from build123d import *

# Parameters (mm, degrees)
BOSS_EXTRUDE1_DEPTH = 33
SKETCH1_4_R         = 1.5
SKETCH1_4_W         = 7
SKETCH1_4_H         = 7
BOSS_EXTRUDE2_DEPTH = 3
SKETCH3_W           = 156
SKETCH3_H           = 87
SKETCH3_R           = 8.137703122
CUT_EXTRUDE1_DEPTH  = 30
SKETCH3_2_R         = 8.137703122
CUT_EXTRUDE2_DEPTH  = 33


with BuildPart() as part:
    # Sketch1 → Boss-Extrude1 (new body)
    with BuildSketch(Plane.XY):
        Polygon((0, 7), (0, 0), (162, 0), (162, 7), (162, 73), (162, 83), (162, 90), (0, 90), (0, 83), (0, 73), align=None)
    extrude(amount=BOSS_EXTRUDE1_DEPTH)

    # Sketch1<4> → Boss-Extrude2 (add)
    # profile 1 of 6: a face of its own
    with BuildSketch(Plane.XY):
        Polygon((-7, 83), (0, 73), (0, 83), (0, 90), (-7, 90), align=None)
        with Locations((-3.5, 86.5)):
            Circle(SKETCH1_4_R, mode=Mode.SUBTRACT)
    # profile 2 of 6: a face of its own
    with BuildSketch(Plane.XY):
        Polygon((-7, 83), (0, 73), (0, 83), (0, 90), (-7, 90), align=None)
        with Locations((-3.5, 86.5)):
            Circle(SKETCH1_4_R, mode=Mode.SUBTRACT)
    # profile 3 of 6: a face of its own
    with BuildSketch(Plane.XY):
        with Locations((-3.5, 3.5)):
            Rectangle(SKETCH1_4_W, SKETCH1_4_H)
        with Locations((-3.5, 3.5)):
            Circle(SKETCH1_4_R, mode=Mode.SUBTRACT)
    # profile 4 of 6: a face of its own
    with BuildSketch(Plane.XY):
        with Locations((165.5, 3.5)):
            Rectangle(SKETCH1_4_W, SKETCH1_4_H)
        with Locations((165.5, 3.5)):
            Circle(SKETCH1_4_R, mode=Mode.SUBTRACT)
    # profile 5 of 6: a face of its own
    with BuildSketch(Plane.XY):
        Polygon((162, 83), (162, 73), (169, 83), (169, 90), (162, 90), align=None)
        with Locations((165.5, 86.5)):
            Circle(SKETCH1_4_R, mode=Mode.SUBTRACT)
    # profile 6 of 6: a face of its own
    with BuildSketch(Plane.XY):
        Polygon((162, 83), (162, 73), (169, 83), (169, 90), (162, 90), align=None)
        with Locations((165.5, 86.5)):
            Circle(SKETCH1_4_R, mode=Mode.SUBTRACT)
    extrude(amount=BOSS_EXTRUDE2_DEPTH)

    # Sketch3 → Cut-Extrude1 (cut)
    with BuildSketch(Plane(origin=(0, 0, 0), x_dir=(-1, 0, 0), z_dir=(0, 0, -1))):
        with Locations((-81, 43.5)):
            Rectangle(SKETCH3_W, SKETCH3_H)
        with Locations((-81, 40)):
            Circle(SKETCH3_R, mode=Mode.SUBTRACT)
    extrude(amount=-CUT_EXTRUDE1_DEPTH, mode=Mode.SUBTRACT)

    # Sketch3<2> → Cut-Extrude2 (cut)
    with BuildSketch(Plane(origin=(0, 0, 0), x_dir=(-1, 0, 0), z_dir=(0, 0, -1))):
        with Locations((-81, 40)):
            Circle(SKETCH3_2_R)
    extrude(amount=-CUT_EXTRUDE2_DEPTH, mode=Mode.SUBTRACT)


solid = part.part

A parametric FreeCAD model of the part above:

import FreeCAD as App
import Part
import Sketcher
Q = App.Units.Quantity

doc = App.newDocument("Part")
body = doc.addObject("PartDesign::Body", "Body")

sketch1 = body.newObject("Sketcher::SketchObject", "Sketch")
sketch1.AttachmentSupport = (doc.getObject("XY_Plane"), [""])
sketch1.MapMode = "FlatFace"
sketch1.addGeometry([
    Part.LineSegment(App.Vector(0, 0, 0), App.Vector(162, 0, 0)),
    Part.LineSegment(App.Vector(162, 0, 0), App.Vector(162, 90, 0)),
    Part.LineSegment(App.Vector(162, 90, 0), App.Vector(0, 90, 0)),
    Part.LineSegment(App.Vector(0, 90, 0), App.Vector(0, 0, 0)),
], False)
sketch1.addConstraint([
    Sketcher.Constraint("Coincident", 0, 2, 1, 1),
    Sketcher.Constraint("Coincident", 1, 2, 2, 1),
    Sketcher.Constraint("Coincident", 2, 2, 3, 1),
    Sketcher.Constraint("Coincident", 3, 2, 0, 1),
    Sketcher.Constraint("Horizontal", 0),
    Sketcher.Constraint("Vertical", 1),
    Sketcher.Constraint("Horizontal", 2),
    Sketcher.Constraint("Vertical", 3),
    Sketcher.Constraint("Coincident", 3, 2, -1, 1),
    Sketcher.Constraint("DistanceX", 0, 1, 0, 2, Q("162 mm")),
    Sketcher.Constraint("DistanceY", 1, 1, 1, 2, Q("90 mm")),
])
pad1 = body.newObject("PartDesign::Pad", "Pad")
pad1.Profile = sketch1
pad1.Length = 33

sketch2 = body.newObject("Sketcher::SketchObject", "Sketch001")
sketch2.AttachmentSupport = (doc.getObject("XY_Plane"), [""])
sketch2.MapMode = "FlatFace"
sketch2.addGeometry([
    Part.LineSegment(App.Vector(-7, 83, 0), App.Vector(0, 73, 0)),
    Part.LineSegment(App.Vector(0, 73, 0), App.Vector(0, 90, 0)),
    Part.LineSegment(App.Vector(0, 90, 0), App.Vector(-7, 90, 0)),
    Part.LineSegment(App.Vector(-7, 90, 0), App.Vector(-7, 83, 0)),
    Part.Circle(App.Vector(-3.5, 86.5, 0), App.Vector(0, 0, 1), 1.5),
    Part.LineSegment(App.Vector(-7, 7, 0), App.Vector(-7, 0, 0)),
    Part.LineSegment(App.Vector(-7, 0, 0), App.Vector(0, 0, 0)),
    Part.LineSegment(App.Vector(0, 0, 0), App.Vector(0, 7, 0)),
    Part.LineSegment(App.Vector(0, 7, 0), App.Vector(-7, 7, 0)),
    Part.Circle(App.Vector(-3.5, 3.5, 0), App.Vector(0, 0, 1), 1.5),
    Part.LineSegment(App.Vector(162, 7, 0), App.Vector(162, 0, 0)),
    Part.LineSegment(App.Vector(162, 0, 0), App.Vector(169, 0, 0)),
    Part.LineSegment(App.Vector(169, 0, 0), App.Vector(169, 7, 0)),
    Part.LineSegment(App.Vector(169, 7, 0), App.Vector(162, 7, 0)),
    Part.Circle(App.Vector(165.5, 3.5, 0), App.Vector(0, 0, 1), 1.5),
    Part.LineSegment(App.Vector(162, 73, 0), App.Vector(169, 83, 0)),
    Part.LineSegment(App.Vector(169, 83, 0), App.Vector(169, 90, 0)),
    Part.LineSegment(App.Vector(169, 90, 0), App.Vector(162, 90, 0)),
    Part.LineSegment(App.Vector(162, 90, 0), App.Vector(162, 73, 0)),
    Part.Circle(App.Vector(165.5, 86.5, 0), App.Vector(0, 0, 1), 1.5),
], False)
sketch2.addConstraint([
    Sketcher.Constraint("Coincident", 0, 2, 1, 1),
    Sketcher.Constraint("Coincident", 1, 2, 2, 1),
    Sketcher.Constraint("Coincident", 2, 2, 3, 1),
    Sketcher.Constraint("Coincident", 3, 2, 0, 1),
    Sketcher.Constraint("Coincident", 5, 2, 6, 1),
    Sketcher.Constraint("Coincident", 6, 2, 7, 1),
    Sketcher.Constraint("Coincident", 7, 2, 8, 1),
    Sketcher.Constraint("Coincident", 8, 2, 5, 1),
    Sketcher.Constraint("Coincident", 10, 2, 11, 1),
    Sketcher.Constraint("Coincident", 11, 2, 12, 1),
    Sketcher.Constraint("Coincident", 12, 2, 13, 1),
    Sketcher.Constraint("Coincident", 13, 2, 10, 1),
    Sketcher.Constraint("Coincident", 15, 2, 16, 1),
    Sketcher.Constraint("Coincident", 16, 2, 17, 1),
    Sketcher.Constraint("Coincident", 17, 2, 18, 1),
    Sketcher.Constraint("Coincident", 18, 2, 15, 1),
    Sketcher.Constraint("Vertical", 1),
    Sketcher.Constraint("Horizontal", 2),
    Sketcher.Constraint("Vertical", 3),
    Sketcher.Constraint("Vertical", 5),
    Sketcher.Constraint("Horizontal", 6),
    Sketcher.Constraint("Vertical", 7),
    Sketcher.Constraint("Horizontal", 8),
    Sketcher.Constraint("Vertical", 10),
    Sketcher.Constraint("Horizontal", 11),
    Sketcher.Constraint("Vertical", 12),
    Sketcher.Constraint("Horizontal", 13),
    Sketcher.Constraint("Vertical", 16),
    Sketcher.Constraint("Horizontal", 17),
    Sketcher.Constraint("Vertical", 18),
    Sketcher.Constraint("Coincident", 6, 2, -1, 1),
    Sketcher.Constraint("Equal", 4, 9),
    Sketcher.Constraint("Equal", 9, 14),
    Sketcher.Constraint("Equal", 14, 19),
    Sketcher.Constraint("PointOnObject", 0, 2, -2),
    Sketcher.Constraint("PointOnObject", 10, 2, -1),
    Sketcher.Constraint("Horizontal", 9, 3, 14, 3),
    Sketcher.Constraint("Horizontal", 4, 3, 19, 3),
    Sketcher.Constraint("Horizontal", 8, 2, 12, 2),
    Sketcher.Constraint("Horizontal", 3, 2, 15, 2),
    Sketcher.Constraint("Horizontal", 2, 2, 16, 2),
    Sketcher.Constraint("Horizontal", 0, 2, 18, 2),
    Sketcher.Constraint("Vertical", 4, 3, 9, 3),
    Sketcher.Constraint("Vertical", 14, 3, 19, 3),
    Sketcher.Constraint("Vertical", 3, 2, 5, 2),
    Sketcher.Constraint("Vertical", 12, 2, 15, 2),
    Sketcher.Constraint("Vertical", 13, 2, 17, 2),
    Sketcher.Constraint("Equal", 8, 11),
    Sketcher.Constraint("Equal", 17, 3),
    Sketcher.Constraint("Equal", 3, 5),
    Sketcher.Constraint("Diameter", 4, Q("3 mm")),
    Sketcher.Constraint("DistanceX", 2, 2, 2, 1, Q("7 mm")),
    Sketcher.Constraint("DistanceY", 1, 1, 1, 2, Q("17 mm")),
    Sketcher.Constraint("DistanceY", -1, 1, 0, 2, Q("73 mm")),
    Sketcher.Constraint("DistanceX", -1, 1, 10, 2, Q("162 mm")),
    Sketcher.Constraint("DistanceY", 9, 3, 4, 3, Q("83 mm")),
    Sketcher.Constraint("DistanceX", 9, 3, 14, 3, Q("169 mm")),
    Sketcher.Constraint("DistanceX", 4, 3, -1, 1, Q("3.5 mm")),
    Sketcher.Constraint("DistanceY", -1, 1, 4, 3, Q("86.5 mm")),
])
pad2 = body.newObject("PartDesign::Pad", "Pad001")
pad2.Profile = sketch2
pad2.Length = 3

sketch3 = body.newObject("Sketcher::SketchObject", "Sketch002")
sketch3.AttachmentSupport = (doc.getObject("XY_Plane"), [""])
sketch3.MapMode = "FlatFace"
sketch3.addGeometry([
    Part.LineSegment(App.Vector(159, 87, 0), App.Vector(159, 0, 0)),
    Part.LineSegment(App.Vector(159, 0, 0), App.Vector(3, 0, 0)),
    Part.LineSegment(App.Vector(3, 0, 0), App.Vector(3, 87, 0)),
    Part.LineSegment(App.Vector(3, 87, 0), App.Vector(159, 87, 0)),
    Part.Circle(App.Vector(81, 40, 0), App.Vector(0, 0, 1), 8),
], False)
sketch3.addConstraint([
    Sketcher.Constraint("Coincident", 0, 2, 1, 1),
    Sketcher.Constraint("Coincident", 1, 2, 2, 1),
    Sketcher.Constraint("Coincident", 2, 2, 3, 1),
    Sketcher.Constraint("Coincident", 3, 2, 0, 1),
    Sketcher.Constraint("Vertical", 0),
    Sketcher.Constraint("Horizontal", 1),
    Sketcher.Constraint("Vertical", 2),
    Sketcher.Constraint("Horizontal", 3),
    Sketcher.Constraint("PointOnObject", 0, 2, -1),
    Sketcher.Constraint("DistanceX", 1, 2, 1, 1, Q("156 mm")),
    Sketcher.Constraint("DistanceY", 0, 2, 0, 1, Q("87 mm")),
    Sketcher.Constraint("DistanceX", -1, 1, 4, 3, Q("81 mm")),
    Sketcher.Constraint("DistanceY", -1, 1, 4, 3, Q("40 mm")),
    Sketcher.Constraint("DistanceX", -1, 1, 0, 2, Q("159 mm")),
    Sketcher.Constraint("Diameter", 4, Q("16.275406 mm")),
])
pocket1 = body.newObject("PartDesign::Pocket", "Pocket")
pocket1.Profile = sketch3
pocket1.Length = 30
pocket1.Reversed = True

sketch4 = body.newObject("Sketcher::SketchObject", "Sketch003")
sketch4.AttachmentSupport = (doc.getObject("XY_Plane"), [""])
sketch4.MapMode = "FlatFace"
sketch4.addGeometry(Part.Circle(App.Vector(81, 40, 0), App.Vector(0, 0, 1), 8), False)
sketch4.addConstraint([
    Sketcher.Constraint("DistanceX", -1, 1, 0, 3, Q("81 mm")),
    Sketcher.Constraint("DistanceY", -1, 1, 0, 3, Q("40 mm")),
    Sketcher.Constraint("Diameter", 0, Q("16.275406 mm")),
])
pocket2 = body.newObject("PartDesign::Pocket", "Pocket001")
pocket2.Profile = sketch4
pocket2.Length = 33
pocket2.Reversed = True

doc.recompute()
